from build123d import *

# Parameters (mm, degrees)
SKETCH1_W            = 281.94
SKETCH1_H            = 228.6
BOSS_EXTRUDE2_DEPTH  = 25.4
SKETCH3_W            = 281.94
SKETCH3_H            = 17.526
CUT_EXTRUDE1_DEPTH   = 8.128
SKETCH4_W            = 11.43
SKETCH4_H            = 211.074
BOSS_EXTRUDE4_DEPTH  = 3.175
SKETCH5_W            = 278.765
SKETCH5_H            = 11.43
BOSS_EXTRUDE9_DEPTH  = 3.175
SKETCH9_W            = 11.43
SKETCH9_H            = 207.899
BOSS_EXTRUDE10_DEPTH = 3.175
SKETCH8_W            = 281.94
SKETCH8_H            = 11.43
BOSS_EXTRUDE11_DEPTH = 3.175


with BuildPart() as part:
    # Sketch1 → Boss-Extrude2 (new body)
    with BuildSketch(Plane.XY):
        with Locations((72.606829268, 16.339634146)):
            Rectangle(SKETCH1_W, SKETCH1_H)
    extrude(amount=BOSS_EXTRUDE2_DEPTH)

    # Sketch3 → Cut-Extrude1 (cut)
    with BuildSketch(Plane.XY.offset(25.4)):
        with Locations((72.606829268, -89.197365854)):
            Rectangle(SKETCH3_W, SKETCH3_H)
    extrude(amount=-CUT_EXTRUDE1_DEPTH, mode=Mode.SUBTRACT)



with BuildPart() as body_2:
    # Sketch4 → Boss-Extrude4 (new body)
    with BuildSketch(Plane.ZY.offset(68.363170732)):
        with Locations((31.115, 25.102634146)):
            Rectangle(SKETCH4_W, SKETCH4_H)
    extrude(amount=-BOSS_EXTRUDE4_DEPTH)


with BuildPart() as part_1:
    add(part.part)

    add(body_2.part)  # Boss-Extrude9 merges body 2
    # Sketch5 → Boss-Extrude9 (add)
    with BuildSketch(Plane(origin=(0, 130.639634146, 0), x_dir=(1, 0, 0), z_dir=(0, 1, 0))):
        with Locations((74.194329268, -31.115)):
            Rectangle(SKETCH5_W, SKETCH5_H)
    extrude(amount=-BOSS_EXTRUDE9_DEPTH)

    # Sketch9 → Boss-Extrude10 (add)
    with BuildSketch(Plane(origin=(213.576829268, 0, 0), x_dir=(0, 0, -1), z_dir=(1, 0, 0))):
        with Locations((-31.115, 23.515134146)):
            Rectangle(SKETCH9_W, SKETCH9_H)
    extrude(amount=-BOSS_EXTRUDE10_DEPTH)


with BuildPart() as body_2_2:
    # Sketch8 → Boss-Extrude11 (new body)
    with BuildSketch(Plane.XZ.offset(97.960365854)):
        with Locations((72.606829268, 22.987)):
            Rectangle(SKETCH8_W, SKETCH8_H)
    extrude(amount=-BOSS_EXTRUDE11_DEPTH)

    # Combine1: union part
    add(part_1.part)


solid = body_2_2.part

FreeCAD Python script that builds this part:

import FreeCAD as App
import Part
import Sketcher

V = App.Vector
Q = App.Units.Quantity

doc = App.newDocument("Part")
body = doc.addObject("PartDesign::Body", "Body")

# Sketch on XY plane
sketch1 = body.newObject("Sketcher::SketchObject", "Sketch")
sketch1.AttachmentSupport = (doc.getObject("XY_Plane"), [""])
sketch1.MapMode = "FlatFace"
sketch1.addGeometry([
    Part.LineSegment(V(-68.363171, 130.639634, 0), V(-68.363171, -97.960366, 0)),
    Part.LineSegment(V(-68.363171, -97.960366, 0), V(213.576829, -97.960366, 0)),
    Part.LineSegment(V(213.576829, -97.960366, 0), V(213.576829, 130.639634, 0)),
    Part.LineSegment(V(213.576829, 130.639634, 0), V(-68.363171, 130.639634, 0)),
], False)
sketch1.addConstraint([
    Sketcher.Constraint("Coincident", 0, 2, 1, 1),
    Sketcher.Constraint("Coincident", 1, 2, 2, 1),
    Sketcher.Constraint("Coincident", 2, 2, 3, 1),
    Sketcher.Constraint("Coincident", 3, 2, 0, 1),
    Sketcher.Constraint("Vertical", 0),
    Sketcher.Constraint("Horizontal", 1),
    Sketcher.Constraint("Vertical", 2),
    Sketcher.Constraint("Horizontal", 3),
    Sketcher.Constraint("DistanceY", 0, 2, 0, 1, Q("9 in")),
    Sketcher.Constraint("DistanceX", 1, 1, 1, 2, Q("11.1 in")),
    Sketcher.Constraint("DistanceX", 0, 2, -1, 1, 68.363171),
    Sketcher.Constraint("DistanceY", 0, 2, -1, 1, 97.960366),
])
pad1 = body.newObject("PartDesign::Pad", "Pad")
pad1.Profile = sketch1
pad1.Length = Q("1 in")

# Sketch on XY plane
sketch2 = body.newObject("Sketcher::SketchObject", "Sketch001")
sketch2.AttachmentSupport = (doc.getObject("XY_Plane"), [""])
sketch2.MapMode = "FlatFace"
sketch2.AttachmentOffset = App.Placement(V(0, 0, 1 * 25.4), App.Rotation())
sketch2.addGeometry([
    Part.LineSegment(V(-68.363171, -80.434366, 0), V(-68.363171, -97.960366, 0)),
    Part.LineSegment(V(-68.363171, -97.960366, 0), V(213.576829, -97.960366, 0)),
    Part.LineSegment(V(213.576829, -97.960366, 0), V(213.576829, -80.434366, 0)),
    Part.LineSegment(V(213.576829, -80.434366, 0), V(-68.363171, -80.434366, 0)),
], False)
sketch2.addConstraint([
    Sketcher.Constraint("Coincident", 0, 2, 1, 1),
    Sketcher.Constraint("Coincident", 1, 2, 2, 1),
    Sketcher.Constraint("Coincident", 2, 2, 3, 1),
    Sketcher.Constraint("Coincident", 3, 2, 0, 1),
    Sketcher.Constraint("Vertical", 0),
    Sketcher.Constraint("Horizontal", 1),
    Sketcher.Constraint("Vertical", 2),
    Sketcher.Constraint("Horizontal", 3),
    Sketcher.Constraint("DistanceX", 1, 1, 1, 2, Q("11.1 in")),
    Sketcher.Constraint("DistanceY", 0, 2, 0, 1, Q("0.69 in")),
    Sketcher.Constraint("DistanceX", 0, 2, -1, 1, 68.363171),
    Sketcher.Constraint("DistanceY", 0, 2, -1, 1, 97.960366),
])
pocket1 = body.newObject("PartDesign::Pocket", "Pocket")
pocket1.Profile = sketch2
pocket1.Length = Q("0.32 in")
body2 = doc.addObject("PartDesign::Body", "Body001")

# Sketch on YZ plane
sketch3 = body2.newObject("Sketcher::SketchObject", "Sketch002")
sketch3.AttachmentSupport = (doc.getObject("YZ_Plane001"), [""])
sketch3.MapMode = "FlatFace"
sketch3.AttachmentOffset = App.Placement(V(0, 0, -68.363171), App.Rotation())
sketch3.addGeometry([
    Part.LineSegment(V(130.639634, 25.4, 0), V(-80.434366, 25.4, 0)),
    Part.LineSegment(V(-80.434366, 25.4, 0), V(-80.434366, 36.83, 0)),
    Part.LineSegment(V(-80.434366, 36.83, 0), V(130.639634, 36.83, 0)),
    Part.LineSegment(V(130.639634, 36.83, 0), V(130.639634, 25.4, 0)),
], False)
sketch3.addConstraint([
    Sketcher.Constraint("Coincident", 0, 2, 1, 1),
    Sketcher.Constraint("Coincident", 1, 2, 2, 1),
    Sketcher.Constraint("Coincident", 2, 2, 3, 1),
    Sketcher.Constraint("Coincident", 3, 2, 0, 1),
    Sketcher.Constraint("Horizontal", 0),
    Sketcher.Constraint("Vertical", 1),
    Sketcher.Constraint("Horizontal", 2),
    Sketcher.Constraint("Vertical", 3),
    Sketcher.Constraint("DistanceY", -1, 1, 0, 2, Q("1 in")),
    Sketcher.Constraint("DistanceX", 0, 2, 0, 1, Q("8.31 in")),
    Sketcher.Constraint("DistanceY", 1, 1, 1, 2, Q("0.45 in")),
    Sketcher.Constraint("DistanceX", 0, 2, -1, 1, 80.434366),
])
pad2 = body2.newObject("PartDesign::Pad", "Pad001")
pad2.Profile = sketch3
pad2.Length = Q("0.125 in")
doc.recompute()

boolean = body.newObject("PartDesign::Boolean", "Boolean")
boolean.Type = "Fuse"
boolean.addObjects([body2])

# Sketch on XZ plane
sketch4 = body.newObject("Sketcher::SketchObject", "Sketch003")
sketch4.AttachmentSupport = (doc.getObject("XZ_Plane"), [""])
sketch4.MapMode = "FlatFace"
sketch4.AttachmentOffset = App.Placement(V(0, 0, -130.639634), App.Rotation())
sketch4.addGeometry([
    Part.LineSegment(V(-65.188171, 25.4, 0), V(-65.188171, 36.83, 0)),
    Part.LineSegment(V(-65.188171, 36.83, 0), V(213.576829, 36.83, 0)),
    Part.LineSegment(V(213.576829, 36.83, 0), V(213.576829, 25.4, 0)),
    Part.LineSegment(V(213.576829, 25.4, 0), V(-65.188171, 25.4, 0)),
], False)
sketch4.addConstraint([
    Sketcher.Constraint("Coincident", 0, 2, 1, 1),
    Sketcher.Constraint("Coincident", 1, 2, 2, 1),
    Sketcher.Constraint("Coincident", 2, 2, 3, 1),
    Sketcher.Constraint("Coincident", 3, 2, 0, 1),
    Sketcher.Constraint("Vertical", 0),
    Sketcher.Constraint("Horizontal", 1),
    Sketcher.Constraint("Vertical", 2),
    Sketcher.Constraint("Horizontal", 3),
    Sketcher.Constraint("DistanceY", -1, 1, 2, 2, Q("1 in")),
    Sketcher.Constraint("DistanceY", 0, 1, 0, 2, Q("0.45 in")),
    Sketcher.Constraint("DistanceX", 1, 1, 1, 2, Q("10.975 in")),
    Sketcher.Constraint("DistanceX", 0, 2, -1, 1, 65.188171),
])
pad3 = body.newObject("PartDesign::Pad", "Pad002")
pad3.Profile = sketch4
pad3.Length = Q("0.125 in")

# Sketch on YZ plane
sketch5 = body.newObject("Sketcher::SketchObject", "Sketch004")
sketch5.AttachmentSupport = (doc.getObject("YZ_Plane"), [""])
sketch5.MapMode = "FlatFace"
sketch5.AttachmentOffset = App.Placement(V(0, 0, 213.576829), App.Rotation())
sketch5.addGeometry([
    Part.LineSegment(V(127.464634, 36.83, 0), V(-80.434366, 36.83, 0)),
    Part.LineSegment(V(-80.434366, 36.83, 0), V(-80.434366, 25.4, 0)),
    Part.LineSegment(V(-80.434366, 25.4, 0), V(127.464634, 25.4, 0)),
    Part.LineSegment(V(127.464634, 25.4, 0), V(127.464634, 36.83, 0)),
], False)
sketch5.addConstraint([
    Sketcher.Constraint("Coincident", 0, 2, 1, 1),
    Sketcher.Constraint("Coincident", 1, 2, 2, 1),
    Sketcher.Constraint("Coincident", 2, 2, 3, 1),
    Sketcher.Constraint("Coincident", 3, 2, 0, 1),
    Sketcher.Constraint("Horizontal", 0),
    Sketcher.Constraint("Vertical", 1),
    Sketcher.Constraint("Horizontal", 2),
    Sketcher.Constraint("Vertical", 3),
    Sketcher.Constraint("DistanceY", -1, 1, 1, 2, Q("1 in")),
    Sketcher.Constraint("DistanceY", 1, 2, 1, 1, Q("0.45 in")),
    Sketcher.Constraint("DistanceX", 0, 2, 0, 1, Q("8.185 in")),
    Sketcher.Constraint("DistanceX", 0, 2, -1, 1, 80.434366),
])
pad4 = body.newObject("PartDesign::Pad", "Pad003")
pad4.Profile = sketch5
pad4.Length = Q("0.125 in")
pad4.Reversed = True
body3 = doc.addObject("PartDesign::Body", "Body002")

# Sketch on XZ plane
sketch6 = body3.newObject("Sketcher::SketchObject", "Sketch005")
sketch6.AttachmentSupport = (doc.getObject("XZ_Plane002"), [""])
sketch6.MapMode = "FlatFace"
sketch6.AttachmentOffset = App.Placement(V(0, 0, 97.960366), App.Rotation())
sketch6.addGeometry([
    Part.LineSegment(V(-68.363171, 28.702, 0), V(-68.363171, 17.272, 0)),
    Part.LineSegment(V(-68.363171, 17.272, 0), V(213.576829, 17.272, 0)),
    Part.LineSegment(V(213.576829, 17.272, 0), V(213.576829, 28.702, 0)),
    Part.LineSegment(V(213.576829, 28.702, 0), V(-68.363171, 28.702, 0)),
], False)
sketch6.addConstraint([
    Sketcher.Constraint("Coincident", 0, 2, 1, 1),
    Sketcher.Constraint("Coincident", 1, 2, 2, 1),
    Sketcher.Constraint("Coincident", 2, 2, 3, 1),
    Sketcher.Constraint("Coincident", 3, 2, 0, 1),
    Sketcher.Constraint("Vertical", 0),
    Sketcher.Constraint("Horizontal", 1),
    Sketcher.Constraint("Vertical", 2),
    Sketcher.Constraint("Horizontal", 3),
    Sketcher.Constraint("DistanceX", 1, 1, 1, 2, Q("11.1 in")),
    Sketcher.Constraint("DistanceY", 0, 2, 0, 1, Q("0.45 in")),
    Sketcher.Constraint("DistanceY", -1, 1, 0, 2, Q("0.68 in")),
    Sketcher.Constraint("DistanceX", 0, 2, -1, 1, 68.363171),
])
pad5 = body3.newObject("PartDesign::Pad", "Pad004")
pad5.Profile = sketch6
pad5.Length = Q("0.125 in")
pad5.Reversed = True
doc.recompute()

boolean2 = body3.newObject("PartDesign::Boolean", "Boolean001")
boolean2.Type = "Fuse"
boolean2.addObjects([body])

doc.recompute()
